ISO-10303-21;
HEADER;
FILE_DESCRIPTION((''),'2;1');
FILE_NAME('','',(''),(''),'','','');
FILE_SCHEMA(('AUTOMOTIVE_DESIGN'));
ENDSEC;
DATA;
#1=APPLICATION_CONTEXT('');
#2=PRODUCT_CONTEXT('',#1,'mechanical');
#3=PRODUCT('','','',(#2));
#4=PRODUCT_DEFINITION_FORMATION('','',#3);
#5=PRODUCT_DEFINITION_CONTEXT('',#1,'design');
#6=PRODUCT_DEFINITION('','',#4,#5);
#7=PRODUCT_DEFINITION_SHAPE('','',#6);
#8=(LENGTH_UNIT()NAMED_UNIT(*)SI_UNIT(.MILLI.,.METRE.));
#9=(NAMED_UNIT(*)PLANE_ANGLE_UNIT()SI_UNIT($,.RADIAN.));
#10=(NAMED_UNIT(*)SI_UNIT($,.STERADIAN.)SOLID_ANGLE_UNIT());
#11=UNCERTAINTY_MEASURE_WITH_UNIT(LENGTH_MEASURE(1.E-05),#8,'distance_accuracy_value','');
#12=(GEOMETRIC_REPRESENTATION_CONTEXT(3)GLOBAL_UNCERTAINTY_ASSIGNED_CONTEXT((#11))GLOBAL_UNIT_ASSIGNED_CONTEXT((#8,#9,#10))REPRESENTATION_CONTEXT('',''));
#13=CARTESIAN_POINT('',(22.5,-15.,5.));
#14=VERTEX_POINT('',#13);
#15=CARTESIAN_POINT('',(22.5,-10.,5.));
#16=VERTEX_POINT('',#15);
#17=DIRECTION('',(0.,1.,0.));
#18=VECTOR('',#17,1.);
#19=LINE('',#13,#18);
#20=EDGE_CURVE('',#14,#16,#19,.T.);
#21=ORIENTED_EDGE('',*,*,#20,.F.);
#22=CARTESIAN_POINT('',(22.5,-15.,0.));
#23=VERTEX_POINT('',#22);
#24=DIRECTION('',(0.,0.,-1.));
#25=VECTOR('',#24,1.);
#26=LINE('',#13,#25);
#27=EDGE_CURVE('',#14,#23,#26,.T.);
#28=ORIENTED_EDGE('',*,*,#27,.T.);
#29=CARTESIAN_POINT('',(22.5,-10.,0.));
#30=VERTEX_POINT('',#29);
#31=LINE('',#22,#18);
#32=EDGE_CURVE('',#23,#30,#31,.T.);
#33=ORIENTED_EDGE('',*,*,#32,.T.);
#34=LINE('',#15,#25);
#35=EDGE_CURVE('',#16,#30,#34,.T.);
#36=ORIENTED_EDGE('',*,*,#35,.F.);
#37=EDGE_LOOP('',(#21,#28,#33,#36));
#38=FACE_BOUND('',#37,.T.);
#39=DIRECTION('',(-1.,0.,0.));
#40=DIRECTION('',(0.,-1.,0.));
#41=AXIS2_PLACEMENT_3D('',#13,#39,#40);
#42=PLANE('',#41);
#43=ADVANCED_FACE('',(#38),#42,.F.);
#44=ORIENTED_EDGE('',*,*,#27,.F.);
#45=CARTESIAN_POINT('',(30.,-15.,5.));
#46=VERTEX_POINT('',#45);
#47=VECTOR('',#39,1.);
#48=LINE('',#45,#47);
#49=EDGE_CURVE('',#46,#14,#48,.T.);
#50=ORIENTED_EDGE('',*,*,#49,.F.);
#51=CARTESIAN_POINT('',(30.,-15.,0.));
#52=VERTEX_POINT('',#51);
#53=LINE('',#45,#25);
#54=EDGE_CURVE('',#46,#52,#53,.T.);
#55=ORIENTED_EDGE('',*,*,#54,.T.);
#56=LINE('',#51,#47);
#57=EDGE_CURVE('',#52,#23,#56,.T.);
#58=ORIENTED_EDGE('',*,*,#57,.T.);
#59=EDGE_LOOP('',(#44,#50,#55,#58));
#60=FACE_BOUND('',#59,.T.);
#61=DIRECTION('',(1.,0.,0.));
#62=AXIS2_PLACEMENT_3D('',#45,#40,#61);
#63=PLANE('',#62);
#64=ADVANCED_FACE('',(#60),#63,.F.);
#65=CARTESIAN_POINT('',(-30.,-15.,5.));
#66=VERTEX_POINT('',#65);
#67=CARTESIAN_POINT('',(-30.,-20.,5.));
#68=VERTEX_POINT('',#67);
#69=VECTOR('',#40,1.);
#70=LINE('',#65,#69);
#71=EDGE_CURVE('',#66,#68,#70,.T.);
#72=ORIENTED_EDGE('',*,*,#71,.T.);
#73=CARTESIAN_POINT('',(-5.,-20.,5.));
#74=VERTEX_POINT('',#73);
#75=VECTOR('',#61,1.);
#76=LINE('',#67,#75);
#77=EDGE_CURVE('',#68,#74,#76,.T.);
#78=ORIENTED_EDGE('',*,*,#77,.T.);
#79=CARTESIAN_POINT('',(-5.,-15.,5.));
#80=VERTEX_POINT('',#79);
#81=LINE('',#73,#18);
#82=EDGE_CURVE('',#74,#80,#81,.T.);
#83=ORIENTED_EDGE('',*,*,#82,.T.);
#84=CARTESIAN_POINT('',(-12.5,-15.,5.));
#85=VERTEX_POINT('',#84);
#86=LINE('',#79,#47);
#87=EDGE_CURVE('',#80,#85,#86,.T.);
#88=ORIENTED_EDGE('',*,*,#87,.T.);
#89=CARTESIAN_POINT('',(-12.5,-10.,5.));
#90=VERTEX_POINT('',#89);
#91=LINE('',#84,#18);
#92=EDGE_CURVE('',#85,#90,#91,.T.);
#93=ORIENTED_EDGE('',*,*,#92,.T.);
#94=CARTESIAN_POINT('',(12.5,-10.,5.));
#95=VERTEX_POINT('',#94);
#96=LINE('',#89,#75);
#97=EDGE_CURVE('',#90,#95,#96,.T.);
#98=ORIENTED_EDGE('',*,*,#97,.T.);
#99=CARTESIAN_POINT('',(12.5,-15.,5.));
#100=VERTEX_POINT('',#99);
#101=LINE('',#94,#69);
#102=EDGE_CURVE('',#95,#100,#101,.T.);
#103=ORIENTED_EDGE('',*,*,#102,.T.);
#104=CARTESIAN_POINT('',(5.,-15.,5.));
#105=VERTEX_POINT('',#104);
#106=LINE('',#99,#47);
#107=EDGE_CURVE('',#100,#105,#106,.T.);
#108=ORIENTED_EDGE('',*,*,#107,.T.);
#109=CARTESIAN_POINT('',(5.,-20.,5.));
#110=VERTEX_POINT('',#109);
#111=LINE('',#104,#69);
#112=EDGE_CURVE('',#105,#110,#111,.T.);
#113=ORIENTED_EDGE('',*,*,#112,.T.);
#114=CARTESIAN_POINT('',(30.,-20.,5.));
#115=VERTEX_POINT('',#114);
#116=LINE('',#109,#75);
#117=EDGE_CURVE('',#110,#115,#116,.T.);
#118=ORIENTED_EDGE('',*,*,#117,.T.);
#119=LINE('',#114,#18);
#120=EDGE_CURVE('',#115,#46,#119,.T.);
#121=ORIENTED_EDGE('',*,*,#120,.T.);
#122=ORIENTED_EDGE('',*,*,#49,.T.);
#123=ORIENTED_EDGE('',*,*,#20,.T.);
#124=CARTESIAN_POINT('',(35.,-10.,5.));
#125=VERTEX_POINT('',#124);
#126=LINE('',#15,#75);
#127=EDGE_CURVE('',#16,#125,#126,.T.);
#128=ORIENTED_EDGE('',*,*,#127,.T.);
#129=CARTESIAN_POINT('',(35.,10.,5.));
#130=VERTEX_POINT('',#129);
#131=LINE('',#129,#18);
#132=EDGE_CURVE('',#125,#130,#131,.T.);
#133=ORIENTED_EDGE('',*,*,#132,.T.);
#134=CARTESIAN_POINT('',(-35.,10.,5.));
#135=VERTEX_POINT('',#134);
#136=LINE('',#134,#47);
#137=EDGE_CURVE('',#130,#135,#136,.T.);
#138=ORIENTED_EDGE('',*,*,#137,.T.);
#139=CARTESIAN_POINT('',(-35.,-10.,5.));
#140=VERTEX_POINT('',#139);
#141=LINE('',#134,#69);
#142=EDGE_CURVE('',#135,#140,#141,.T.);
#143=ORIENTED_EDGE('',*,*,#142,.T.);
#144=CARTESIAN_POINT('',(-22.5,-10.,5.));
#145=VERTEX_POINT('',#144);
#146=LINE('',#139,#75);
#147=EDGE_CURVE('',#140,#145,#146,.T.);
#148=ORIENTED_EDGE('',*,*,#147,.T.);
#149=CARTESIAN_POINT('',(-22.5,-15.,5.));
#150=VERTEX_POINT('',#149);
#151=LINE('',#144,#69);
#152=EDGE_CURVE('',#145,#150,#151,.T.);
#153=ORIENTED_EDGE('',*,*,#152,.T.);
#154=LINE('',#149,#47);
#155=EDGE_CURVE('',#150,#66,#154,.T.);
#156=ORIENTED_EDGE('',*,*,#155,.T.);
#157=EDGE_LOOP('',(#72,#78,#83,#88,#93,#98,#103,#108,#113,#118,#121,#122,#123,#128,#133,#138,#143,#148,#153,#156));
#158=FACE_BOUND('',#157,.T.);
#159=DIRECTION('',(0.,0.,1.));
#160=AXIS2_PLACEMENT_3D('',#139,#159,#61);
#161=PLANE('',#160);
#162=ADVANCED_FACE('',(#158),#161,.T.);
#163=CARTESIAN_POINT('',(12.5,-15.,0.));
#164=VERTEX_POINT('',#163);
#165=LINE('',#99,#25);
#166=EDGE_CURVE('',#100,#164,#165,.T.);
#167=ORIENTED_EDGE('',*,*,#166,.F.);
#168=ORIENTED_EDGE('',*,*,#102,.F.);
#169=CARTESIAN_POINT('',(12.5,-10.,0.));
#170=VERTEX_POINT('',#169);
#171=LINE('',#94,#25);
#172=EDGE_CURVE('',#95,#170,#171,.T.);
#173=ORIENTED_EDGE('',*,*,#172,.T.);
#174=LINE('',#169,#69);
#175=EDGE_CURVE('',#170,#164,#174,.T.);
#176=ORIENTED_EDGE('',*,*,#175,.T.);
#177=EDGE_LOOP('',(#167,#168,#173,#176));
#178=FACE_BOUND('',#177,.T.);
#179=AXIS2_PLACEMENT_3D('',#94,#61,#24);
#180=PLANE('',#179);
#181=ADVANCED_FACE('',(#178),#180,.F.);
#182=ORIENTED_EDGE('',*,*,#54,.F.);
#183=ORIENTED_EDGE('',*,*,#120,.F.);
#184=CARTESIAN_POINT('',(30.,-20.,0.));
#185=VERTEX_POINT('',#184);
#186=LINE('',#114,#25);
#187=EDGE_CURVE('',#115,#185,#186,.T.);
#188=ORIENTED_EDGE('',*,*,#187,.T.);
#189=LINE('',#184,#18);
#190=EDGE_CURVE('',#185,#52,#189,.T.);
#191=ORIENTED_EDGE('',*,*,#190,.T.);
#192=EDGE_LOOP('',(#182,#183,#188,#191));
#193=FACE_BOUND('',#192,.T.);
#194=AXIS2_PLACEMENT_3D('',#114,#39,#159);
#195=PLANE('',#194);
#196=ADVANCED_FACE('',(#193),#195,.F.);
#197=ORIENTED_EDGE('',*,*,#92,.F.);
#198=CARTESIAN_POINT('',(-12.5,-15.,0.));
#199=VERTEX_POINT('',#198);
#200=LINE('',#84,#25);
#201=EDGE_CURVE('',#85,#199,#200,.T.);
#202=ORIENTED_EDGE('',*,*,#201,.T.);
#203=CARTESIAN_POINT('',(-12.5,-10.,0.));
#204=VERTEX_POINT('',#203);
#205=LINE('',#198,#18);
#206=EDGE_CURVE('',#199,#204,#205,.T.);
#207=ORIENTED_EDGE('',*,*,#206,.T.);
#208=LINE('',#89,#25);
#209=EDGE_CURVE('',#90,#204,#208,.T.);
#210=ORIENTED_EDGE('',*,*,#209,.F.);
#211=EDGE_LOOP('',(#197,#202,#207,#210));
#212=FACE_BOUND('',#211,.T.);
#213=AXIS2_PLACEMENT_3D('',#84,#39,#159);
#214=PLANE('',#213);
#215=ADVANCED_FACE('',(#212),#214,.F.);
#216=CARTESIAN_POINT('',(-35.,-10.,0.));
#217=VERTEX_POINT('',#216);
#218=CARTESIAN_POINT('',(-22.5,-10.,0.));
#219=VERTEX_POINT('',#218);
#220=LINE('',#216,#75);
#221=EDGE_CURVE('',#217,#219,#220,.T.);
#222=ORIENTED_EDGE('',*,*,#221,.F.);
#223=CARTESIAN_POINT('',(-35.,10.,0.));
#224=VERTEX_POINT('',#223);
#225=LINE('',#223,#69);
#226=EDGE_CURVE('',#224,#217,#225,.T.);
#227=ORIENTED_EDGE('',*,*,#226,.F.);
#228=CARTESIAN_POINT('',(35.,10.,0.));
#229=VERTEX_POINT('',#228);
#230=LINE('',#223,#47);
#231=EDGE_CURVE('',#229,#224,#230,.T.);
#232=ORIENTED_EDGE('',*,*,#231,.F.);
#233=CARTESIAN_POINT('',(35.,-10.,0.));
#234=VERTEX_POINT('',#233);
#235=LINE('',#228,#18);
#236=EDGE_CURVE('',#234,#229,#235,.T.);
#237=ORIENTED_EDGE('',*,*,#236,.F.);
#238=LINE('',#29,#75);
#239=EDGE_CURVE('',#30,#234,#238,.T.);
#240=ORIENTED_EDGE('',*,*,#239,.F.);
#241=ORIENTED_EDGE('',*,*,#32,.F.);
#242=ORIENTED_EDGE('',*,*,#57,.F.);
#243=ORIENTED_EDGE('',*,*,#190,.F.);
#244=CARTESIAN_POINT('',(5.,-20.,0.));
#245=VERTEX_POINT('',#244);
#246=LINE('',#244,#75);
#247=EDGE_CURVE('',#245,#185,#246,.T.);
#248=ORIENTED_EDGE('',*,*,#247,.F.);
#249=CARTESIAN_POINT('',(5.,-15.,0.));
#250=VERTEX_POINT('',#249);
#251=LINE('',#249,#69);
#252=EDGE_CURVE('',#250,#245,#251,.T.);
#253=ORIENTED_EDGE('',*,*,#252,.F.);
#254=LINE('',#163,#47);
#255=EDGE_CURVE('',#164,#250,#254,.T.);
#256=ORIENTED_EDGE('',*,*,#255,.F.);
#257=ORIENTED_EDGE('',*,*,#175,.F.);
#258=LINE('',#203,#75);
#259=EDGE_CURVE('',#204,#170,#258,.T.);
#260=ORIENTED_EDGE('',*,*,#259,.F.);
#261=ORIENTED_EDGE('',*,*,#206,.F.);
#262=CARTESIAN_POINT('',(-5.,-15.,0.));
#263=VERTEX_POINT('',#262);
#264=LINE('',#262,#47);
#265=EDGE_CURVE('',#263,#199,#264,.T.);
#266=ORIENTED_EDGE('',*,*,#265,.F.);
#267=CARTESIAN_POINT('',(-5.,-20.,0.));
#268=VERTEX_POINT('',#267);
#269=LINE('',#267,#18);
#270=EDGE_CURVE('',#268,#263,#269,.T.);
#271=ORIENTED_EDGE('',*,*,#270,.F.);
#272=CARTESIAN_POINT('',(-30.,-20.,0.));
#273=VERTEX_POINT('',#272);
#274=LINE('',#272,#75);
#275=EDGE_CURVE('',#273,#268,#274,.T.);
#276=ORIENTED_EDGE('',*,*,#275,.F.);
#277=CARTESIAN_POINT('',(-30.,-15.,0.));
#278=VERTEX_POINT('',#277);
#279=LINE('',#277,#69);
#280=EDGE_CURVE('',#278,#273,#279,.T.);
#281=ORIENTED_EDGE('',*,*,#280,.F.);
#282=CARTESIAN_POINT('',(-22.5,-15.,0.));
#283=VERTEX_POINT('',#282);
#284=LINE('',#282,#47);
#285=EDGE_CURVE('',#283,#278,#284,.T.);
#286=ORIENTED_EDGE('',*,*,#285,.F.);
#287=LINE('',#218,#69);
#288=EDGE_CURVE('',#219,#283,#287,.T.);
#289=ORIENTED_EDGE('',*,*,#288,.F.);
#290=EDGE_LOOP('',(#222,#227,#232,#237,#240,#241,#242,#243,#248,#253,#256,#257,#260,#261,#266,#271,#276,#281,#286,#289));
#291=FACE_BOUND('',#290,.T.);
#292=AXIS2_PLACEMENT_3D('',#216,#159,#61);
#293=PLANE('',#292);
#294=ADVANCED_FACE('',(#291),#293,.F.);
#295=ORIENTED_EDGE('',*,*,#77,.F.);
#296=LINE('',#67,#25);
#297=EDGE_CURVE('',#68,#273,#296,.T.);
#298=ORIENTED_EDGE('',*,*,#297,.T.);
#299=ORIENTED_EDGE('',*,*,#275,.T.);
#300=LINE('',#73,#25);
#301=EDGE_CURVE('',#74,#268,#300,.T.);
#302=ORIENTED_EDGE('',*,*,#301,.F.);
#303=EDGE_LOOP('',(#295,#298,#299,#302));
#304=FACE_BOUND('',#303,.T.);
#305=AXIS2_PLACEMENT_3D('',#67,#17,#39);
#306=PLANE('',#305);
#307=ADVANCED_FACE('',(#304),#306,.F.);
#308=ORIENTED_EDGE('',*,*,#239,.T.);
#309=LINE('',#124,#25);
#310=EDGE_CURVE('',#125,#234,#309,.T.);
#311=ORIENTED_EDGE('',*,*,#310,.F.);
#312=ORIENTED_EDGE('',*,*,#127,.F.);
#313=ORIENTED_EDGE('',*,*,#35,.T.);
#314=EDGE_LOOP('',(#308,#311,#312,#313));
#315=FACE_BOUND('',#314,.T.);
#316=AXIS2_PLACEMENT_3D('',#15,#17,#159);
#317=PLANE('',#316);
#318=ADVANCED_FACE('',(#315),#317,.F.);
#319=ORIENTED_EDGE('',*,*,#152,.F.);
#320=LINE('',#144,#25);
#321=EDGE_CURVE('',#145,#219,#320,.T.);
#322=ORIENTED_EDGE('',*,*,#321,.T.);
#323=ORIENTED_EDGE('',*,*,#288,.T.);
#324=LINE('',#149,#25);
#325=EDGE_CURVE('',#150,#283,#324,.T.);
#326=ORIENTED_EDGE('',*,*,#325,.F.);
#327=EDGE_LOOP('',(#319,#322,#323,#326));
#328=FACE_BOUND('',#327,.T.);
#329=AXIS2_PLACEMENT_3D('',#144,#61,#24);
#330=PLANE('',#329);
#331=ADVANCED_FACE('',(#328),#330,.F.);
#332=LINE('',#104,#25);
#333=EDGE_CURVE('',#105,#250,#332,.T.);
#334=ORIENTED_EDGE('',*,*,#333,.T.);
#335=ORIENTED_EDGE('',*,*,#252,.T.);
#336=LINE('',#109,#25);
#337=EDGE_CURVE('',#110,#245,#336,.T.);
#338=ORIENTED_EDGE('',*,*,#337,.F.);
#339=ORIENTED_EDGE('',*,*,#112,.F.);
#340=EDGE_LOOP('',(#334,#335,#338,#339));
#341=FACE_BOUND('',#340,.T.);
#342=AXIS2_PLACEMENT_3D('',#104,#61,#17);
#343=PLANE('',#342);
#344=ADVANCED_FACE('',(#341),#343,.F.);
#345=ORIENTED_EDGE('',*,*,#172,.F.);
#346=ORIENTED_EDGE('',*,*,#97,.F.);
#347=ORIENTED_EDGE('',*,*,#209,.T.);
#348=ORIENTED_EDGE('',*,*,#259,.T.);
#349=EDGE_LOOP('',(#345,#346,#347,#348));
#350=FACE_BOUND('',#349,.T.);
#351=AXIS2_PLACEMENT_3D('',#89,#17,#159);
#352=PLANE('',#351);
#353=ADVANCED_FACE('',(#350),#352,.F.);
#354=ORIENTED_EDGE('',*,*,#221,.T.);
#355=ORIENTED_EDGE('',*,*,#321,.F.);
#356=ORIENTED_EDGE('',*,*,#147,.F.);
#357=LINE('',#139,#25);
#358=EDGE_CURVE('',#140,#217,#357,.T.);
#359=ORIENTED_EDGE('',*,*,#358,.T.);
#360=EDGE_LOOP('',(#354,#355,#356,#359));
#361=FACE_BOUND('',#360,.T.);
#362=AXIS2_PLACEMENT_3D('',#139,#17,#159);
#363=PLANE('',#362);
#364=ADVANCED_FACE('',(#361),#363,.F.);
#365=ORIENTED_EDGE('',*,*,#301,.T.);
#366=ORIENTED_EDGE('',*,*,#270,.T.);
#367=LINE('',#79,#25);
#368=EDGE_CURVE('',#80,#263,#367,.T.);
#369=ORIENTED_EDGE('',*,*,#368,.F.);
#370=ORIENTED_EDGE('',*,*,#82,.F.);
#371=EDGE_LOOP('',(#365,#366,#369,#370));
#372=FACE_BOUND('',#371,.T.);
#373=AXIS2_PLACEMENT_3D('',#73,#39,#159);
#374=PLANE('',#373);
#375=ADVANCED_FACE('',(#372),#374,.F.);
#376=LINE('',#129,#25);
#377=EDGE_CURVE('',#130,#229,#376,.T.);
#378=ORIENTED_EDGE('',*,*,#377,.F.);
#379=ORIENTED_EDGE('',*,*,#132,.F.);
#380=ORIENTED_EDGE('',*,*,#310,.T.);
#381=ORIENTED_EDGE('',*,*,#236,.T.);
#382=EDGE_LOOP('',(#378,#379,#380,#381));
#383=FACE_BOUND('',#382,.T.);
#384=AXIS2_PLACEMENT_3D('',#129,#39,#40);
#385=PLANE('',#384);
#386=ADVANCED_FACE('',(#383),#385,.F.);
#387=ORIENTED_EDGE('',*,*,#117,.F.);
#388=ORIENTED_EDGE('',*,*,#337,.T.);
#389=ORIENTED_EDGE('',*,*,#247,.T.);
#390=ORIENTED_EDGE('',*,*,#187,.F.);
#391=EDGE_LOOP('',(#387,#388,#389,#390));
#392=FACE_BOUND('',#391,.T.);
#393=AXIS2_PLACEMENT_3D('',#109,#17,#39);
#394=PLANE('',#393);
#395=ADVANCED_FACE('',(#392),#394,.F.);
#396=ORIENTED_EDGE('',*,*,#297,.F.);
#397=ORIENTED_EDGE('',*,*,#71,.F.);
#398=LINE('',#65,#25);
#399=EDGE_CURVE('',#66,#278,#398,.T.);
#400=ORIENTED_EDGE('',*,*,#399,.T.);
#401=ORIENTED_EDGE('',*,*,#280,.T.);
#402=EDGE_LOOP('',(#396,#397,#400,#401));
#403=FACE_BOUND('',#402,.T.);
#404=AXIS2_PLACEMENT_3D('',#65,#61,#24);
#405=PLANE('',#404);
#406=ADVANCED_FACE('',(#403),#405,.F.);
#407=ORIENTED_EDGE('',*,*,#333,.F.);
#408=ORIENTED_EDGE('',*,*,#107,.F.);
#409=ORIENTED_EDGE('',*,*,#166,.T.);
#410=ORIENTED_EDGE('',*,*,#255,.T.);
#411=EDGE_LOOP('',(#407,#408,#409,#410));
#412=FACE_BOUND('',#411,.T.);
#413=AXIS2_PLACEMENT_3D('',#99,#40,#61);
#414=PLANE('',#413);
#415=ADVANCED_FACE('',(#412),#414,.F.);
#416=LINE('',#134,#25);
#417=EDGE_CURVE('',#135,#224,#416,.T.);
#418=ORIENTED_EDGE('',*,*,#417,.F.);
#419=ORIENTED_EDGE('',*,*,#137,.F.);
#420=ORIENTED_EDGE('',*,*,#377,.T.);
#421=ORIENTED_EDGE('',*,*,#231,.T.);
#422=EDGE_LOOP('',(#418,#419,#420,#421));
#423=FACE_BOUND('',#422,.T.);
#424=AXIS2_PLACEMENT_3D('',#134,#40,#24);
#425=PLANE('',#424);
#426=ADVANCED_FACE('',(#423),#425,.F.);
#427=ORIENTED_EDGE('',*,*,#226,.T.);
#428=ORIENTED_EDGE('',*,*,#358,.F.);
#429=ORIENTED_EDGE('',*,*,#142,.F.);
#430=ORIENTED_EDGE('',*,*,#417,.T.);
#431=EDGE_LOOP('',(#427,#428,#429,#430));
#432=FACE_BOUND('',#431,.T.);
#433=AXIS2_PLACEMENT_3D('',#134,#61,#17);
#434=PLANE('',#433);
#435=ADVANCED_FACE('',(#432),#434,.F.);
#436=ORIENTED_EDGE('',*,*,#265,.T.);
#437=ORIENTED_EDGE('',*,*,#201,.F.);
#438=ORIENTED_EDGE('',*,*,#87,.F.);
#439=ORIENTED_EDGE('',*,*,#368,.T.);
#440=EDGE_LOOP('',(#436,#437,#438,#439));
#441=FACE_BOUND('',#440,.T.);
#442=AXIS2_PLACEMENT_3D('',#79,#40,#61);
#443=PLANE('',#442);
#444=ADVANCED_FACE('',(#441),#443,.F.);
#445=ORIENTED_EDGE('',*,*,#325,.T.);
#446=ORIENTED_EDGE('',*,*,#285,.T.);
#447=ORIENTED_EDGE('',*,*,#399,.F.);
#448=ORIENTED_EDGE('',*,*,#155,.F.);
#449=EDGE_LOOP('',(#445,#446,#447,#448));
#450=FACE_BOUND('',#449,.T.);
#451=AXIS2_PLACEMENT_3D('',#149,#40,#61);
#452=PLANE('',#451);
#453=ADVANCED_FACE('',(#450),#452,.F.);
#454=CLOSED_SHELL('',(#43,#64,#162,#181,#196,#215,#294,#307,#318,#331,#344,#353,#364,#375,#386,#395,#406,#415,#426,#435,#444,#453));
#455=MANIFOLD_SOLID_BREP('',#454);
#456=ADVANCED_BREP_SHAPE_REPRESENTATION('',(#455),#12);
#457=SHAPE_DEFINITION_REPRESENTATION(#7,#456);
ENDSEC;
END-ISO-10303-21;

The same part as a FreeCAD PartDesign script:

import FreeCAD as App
import Part
import Sketcher

V = App.Vector
Q = App.Units.Quantity

doc = App.newDocument("Part")
body = doc.addObject("PartDesign::Body", "Body")

sketch1 = doc.addObject("Sketcher::SketchObject", "Sketch")
body.addObject(sketch1)
sketch1.AttachmentSupport = (doc.XY_Plane, [""])
sketch1.MapMode = "FlatFace"
sketch1.addGeometry(Part.LineSegment(V(-35, -10, 0), V(-22, -10, 0)), False)
sketch1.addGeometry(Part.LineSegment(V(-22, -10, 0), V(-22, -15, 0)), False)
sketch1.addGeometry(Part.LineSegment(V(-22, -15, 0), V(-30, -15, 0)), False)
sketch1.addGeometry(Part.LineSegment(V(-30, -15, 0), V(-30, -20, 0)), False)
sketch1.addGeometry(Part.LineSegment(V(-30, -20, 0), V(-5, -20, 0)), False)
sketch1.addGeometry(Part.LineSegment(V(-5, -20, 0), V(-5, -15, 0)), False)
sketch1.addGeometry(Part.LineSegment(V(-5, -15, 0), V(-12, -15, 0)), False)
sketch1.addGeometry(Part.LineSegment(V(-12, -15, 0), V(-12, -10, 0)), False)
sketch1.addGeometry(Part.LineSegment(V(-12, -10, 0), V(12, -10, 0)), False)
sketch1.addGeometry(Part.LineSegment(V(12, -10, 0), V(12, -15, 0)), False)
sketch1.addGeometry(Part.LineSegment(V(12, -15, 0), V(5, -15, 0)), False)
sketch1.addGeometry(Part.LineSegment(V(5, -15, 0), V(5, -20, 0)), False)
sketch1.addGeometry(Part.LineSegment(V(5, -20, 0), V(30, -20, 0)), False)
sketch1.addGeometry(Part.LineSegment(V(30, -20, 0), V(30, -15, 0)), False)
sketch1.addGeometry(Part.LineSegment(V(30, -15, 0), V(22, -15, 0)), False)
sketch1.addGeometry(Part.LineSegment(V(22, -15, 0), V(22, -10, 0)), False)
sketch1.addGeometry(Part.LineSegment(V(22, -10, 0), V(35, -10, 0)), False)
sketch1.addGeometry(Part.LineSegment(V(35, -10, 0), V(35, 10, 0)), False)
sketch1.addGeometry(Part.LineSegment(V(35, 10, 0), V(-35, 10, 0)), False)
sketch1.addGeometry(Part.LineSegment(V(-35, 10, 0), V(-35, -10, 0)), False)
sketch1.addConstraint(Sketcher.Constraint("Coincident", 0, 2, 1, 1))
sketch1.addConstraint(Sketcher.Constraint("Coincident", 1, 2, 2, 1))
sketch1.addConstraint(Sketcher.Constraint("Coincident", 2, 2, 3, 1))
sketch1.addConstraint(Sketcher.Constraint("Coincident", 3, 2, 4, 1))
sketch1.addConstraint(Sketcher.Constraint("Coincident", 4, 2, 5, 1))
sketch1.addConstraint(Sketcher.Constraint("Coincident", 5, 2, 6, 1))
sketch1.addConstraint(Sketcher.Constraint("Coincident", 6, 2, 7, 1))
sketch1.addConstraint(Sketcher.Constraint("Coincident", 7, 2, 8, 1))
sketch1.addConstraint(Sketcher.Constraint("Coincident", 8, 2, 9, 1))
sketch1.addConstraint(Sketcher.Constraint("Coincident", 9, 2, 10, 1))
sketch1.addConstraint(Sketcher.Constraint("Coincident", 10, 2, 11, 1))
sketch1.addConstraint(Sketcher.Constraint("Coincident", 11, 2, 12, 1))
sketch1.addConstraint(Sketcher.Constraint("Coincident", 12, 2, 13, 1))
sketch1.addConstraint(Sketcher.Constraint("Coincident", 13, 2, 14, 1))
sketch1.addConstraint(Sketcher.Constraint("Coincident", 14, 2, 15, 1))
sketch1.addConstraint(Sketcher.Constraint("Coincident", 15, 2, 16, 1))
sketch1.addConstraint(Sketcher.Constraint("Coincident", 16, 2, 17, 1))
sketch1.addConstraint(Sketcher.Constraint("Coincident", 17, 2, 18, 1))
sketch1.addConstraint(Sketcher.Constraint("Coincident", 18, 2, 19, 1))
sketch1.addConstraint(Sketcher.Constraint("Coincident", 19, 2, 0, 1))
sketch1.addConstraint(Sketcher.Constraint("Horizontal", 0))
sketch1.addConstraint(Sketcher.Constraint("Vertical", 1))
sketch1.addConstraint(Sketcher.Constraint("Horizontal", 2))
sketch1.addConstraint(Sketcher.Constraint("Vertical", 3))
sketch1.addConstraint(Sketcher.Constraint("Horizontal", 4))
sketch1.addConstraint(Sketcher.Constraint("Vertical", 5))
sketch1.addConstraint(Sketcher.Constraint("Horizontal", 6))
sketch1.addConstraint(Sketcher.Constraint("Vertical", 7))
sketch1.addConstraint(Sketcher.Constraint("Horizontal", 8))
sketch1.addConstraint(Sketcher.Constraint("Vertical", 9))
sketch1.addConstraint(Sketcher.Constraint("Horizontal", 10))
sketch1.addConstraint(Sketcher.Constraint("Vertical", 11))
sketch1.addConstraint(Sketcher.Constraint("Horizontal", 12))
sketch1.addConstraint(Sketcher.Constraint("Vertical", 13))
sketch1.addConstraint(Sketcher.Constraint("Horizontal", 14))
sketch1.addConstraint(Sketcher.Constraint("Vertical", 15))
sketch1.addConstraint(Sketcher.Constraint("Horizontal", 16))
sketch1.addConstraint(Sketcher.Constraint("Vertical", 17))
sketch1.addConstraint(Sketcher.Constraint("Horizontal", 18))
sketch1.addConstraint(Sketcher.Constraint("Vertical", 19))
sketch1.addConstraint(Sketcher.Constraint("Symmetric", 16, 2, 18, 2, -1, 1))
sketch1.addConstraint(Sketcher.Constraint("Symmetric", 6, 2, 9, 2, -2))
sketch1.addConstraint(Sketcher.Constraint("Symmetric", 4, 2, 11, 2, -2))
sketch1.addConstraint(Sketcher.Constraint("Symmetric", 2, 2, 13, 2, -2))
sketch1.addConstraint(Sketcher.Constraint("Symmetric", 0, 2, 15, 2, -2))
sketch1.addConstraint(Sketcher.Constraint("Horizontal", 2, 2, 5, 2))
sketch1.addConstraint(Sketcher.Constraint("Horizontal", 0, 2, 7, 2))
sketch1.addConstraint(Sketcher.Constraint("Equal", 2, 6))
sketch1.addConstraint(Sketcher.Constraint("Equal", 4, 8))
sketch1.addConstraint(Sketcher.Constraint("Equal", 1, 3))
sketch1.addConstraint(Sketcher.Constraint("DistanceX", 4, 1, 4, 2, Q("25 mm")))
sketch1.addConstraint(Sketcher.Constraint("DistanceX", 18, 2, 18, 1, Q("70 mm")))
sketch1.addConstraint(Sketcher.Constraint("DistanceY", 1, 2, 1, 1, Q("5 mm")))
sketch1.addConstraint(Sketcher.Constraint("DistanceY", 17, 1, 17, 2, Q("20 mm")))
sketch1.addConstraint(Sketcher.Constraint("DistanceX", 0, 1, 0, 2, Q("12.5 mm")))
pad1 = doc.addObject("PartDesign::Pad", "Pad")
body.addObject(pad1)
pad1.Profile = sketch1
pad1.Length = 5

doc.recompute()
